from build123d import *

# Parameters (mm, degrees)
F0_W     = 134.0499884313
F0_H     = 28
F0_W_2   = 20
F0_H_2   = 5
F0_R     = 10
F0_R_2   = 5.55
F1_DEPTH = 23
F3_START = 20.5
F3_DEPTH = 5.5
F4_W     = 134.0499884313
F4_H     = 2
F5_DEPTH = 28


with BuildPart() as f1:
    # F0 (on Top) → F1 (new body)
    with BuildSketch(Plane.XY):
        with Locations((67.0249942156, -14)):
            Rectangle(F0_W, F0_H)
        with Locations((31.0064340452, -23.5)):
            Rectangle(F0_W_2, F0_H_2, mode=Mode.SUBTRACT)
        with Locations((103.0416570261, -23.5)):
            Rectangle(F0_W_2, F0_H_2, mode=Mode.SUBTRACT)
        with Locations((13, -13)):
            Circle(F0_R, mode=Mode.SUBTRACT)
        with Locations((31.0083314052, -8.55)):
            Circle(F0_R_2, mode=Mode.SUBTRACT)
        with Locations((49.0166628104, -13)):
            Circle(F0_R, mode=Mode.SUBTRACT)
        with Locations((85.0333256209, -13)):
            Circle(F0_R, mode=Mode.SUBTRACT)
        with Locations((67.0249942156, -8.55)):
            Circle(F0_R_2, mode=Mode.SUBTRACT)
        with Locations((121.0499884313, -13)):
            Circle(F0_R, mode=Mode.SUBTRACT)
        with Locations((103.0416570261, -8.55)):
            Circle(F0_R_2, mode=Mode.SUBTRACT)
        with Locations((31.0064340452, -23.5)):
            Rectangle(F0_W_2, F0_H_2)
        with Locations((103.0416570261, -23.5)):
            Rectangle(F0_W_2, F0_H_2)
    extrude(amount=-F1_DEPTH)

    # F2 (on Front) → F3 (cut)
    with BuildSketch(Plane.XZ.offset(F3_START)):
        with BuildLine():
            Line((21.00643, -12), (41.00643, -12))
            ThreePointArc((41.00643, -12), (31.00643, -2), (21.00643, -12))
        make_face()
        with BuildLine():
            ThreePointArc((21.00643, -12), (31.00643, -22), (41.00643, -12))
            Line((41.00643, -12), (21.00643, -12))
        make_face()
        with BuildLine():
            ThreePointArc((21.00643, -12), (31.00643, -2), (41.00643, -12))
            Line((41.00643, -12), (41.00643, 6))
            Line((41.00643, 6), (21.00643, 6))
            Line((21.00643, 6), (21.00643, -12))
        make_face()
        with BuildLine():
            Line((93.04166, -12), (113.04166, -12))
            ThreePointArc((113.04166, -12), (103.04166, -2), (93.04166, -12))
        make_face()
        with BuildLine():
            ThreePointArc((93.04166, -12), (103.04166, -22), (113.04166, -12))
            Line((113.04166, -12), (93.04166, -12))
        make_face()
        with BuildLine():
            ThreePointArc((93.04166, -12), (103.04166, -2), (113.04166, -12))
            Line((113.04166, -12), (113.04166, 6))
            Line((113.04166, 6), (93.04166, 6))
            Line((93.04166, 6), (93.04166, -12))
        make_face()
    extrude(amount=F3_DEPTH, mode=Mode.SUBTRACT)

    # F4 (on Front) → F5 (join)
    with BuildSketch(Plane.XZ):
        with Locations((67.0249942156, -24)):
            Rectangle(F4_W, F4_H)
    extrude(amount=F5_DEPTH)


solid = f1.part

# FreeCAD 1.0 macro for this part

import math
import FreeCAD as App
import Part
import Sketcher


def add_polygon(sketch, points):
    """Adds a closed chain of lines whose ends are joined by coincident constraints."""
    first, n = sketch.GeometryCount, len(points)
    for a, b in zip(points, points[1:] + points[:1]):
        sketch.addGeometry(Part.LineSegment(App.Vector(*a, 0), App.Vector(*b, 0)), False)
    for i in range(n):
        sketch.addConstraint(Sketcher.Constraint("Coincident", first + i, 2, first + (i + 1) % n, 1))

doc = App.newDocument("Part")
body = doc.addObject("PartDesign::Body", "Body")

# Sketch on XY plane
sketch1 = doc.addObject("Sketcher::SketchObject", "Sketch")
body.addObject(sketch1)
sketch1.AttachmentSupport = (doc.XY_Plane, [""])
sketch1.MapMode = "FlatFace"
add_polygon(sketch1, [(0, 0), (0, -28), (134.049988, -28), (134.049988, 0)])  # lines 0-3
sketch1.addGeometry(Part.Circle(App.Vector(13, -13, 0), App.Vector(0, 0, 1), 10), False)  # 4
sketch1.addGeometry(Part.Circle(App.Vector(49.016663, -13, 0), App.Vector(0, 0, 1), 10), False)  # 5
sketch1.addGeometry(Part.Circle(App.Vector(31.008331, -8.55, 0), App.Vector(0, 0, 1), 5.55), False)  # 6
sketch1.addGeometry(Part.Circle(App.Vector(67.024994, -8.55, 0), App.Vector(0, 0, 1), 5.55), False)  # 7
sketch1.addGeometry(Part.Circle(App.Vector(85.033326, -13, 0), App.Vector(0, 0, 1), 10), False)  # 8
sketch1.addGeometry(Part.Circle(App.Vector(121.049988, -13, 0), App.Vector(0, 0, 1), 10), False)  # 9
sketch1.addGeometry(Part.Circle(App.Vector(103.041657, -8.55, 0), App.Vector(0, 0, 1), 5.55), False)  # 10
sketch1.addConstraint(Sketcher.Constraint("Vertical", 0))
sketch1.addConstraint(Sketcher.Constraint("Horizontal", 1))
sketch1.addConstraint(Sketcher.Constraint("Vertical", 2))
sketch1.addConstraint(Sketcher.Constraint("Horizontal", 3))
sketch1.addConstraint(Sketcher.Constraint("Coincident", 3, 2, -1, 1))
sketch1.addConstraint(Sketcher.Constraint("Equal", 4, 5))
sketch1.addConstraint(Sketcher.Constraint("Equal", 6, 7))
sketch1.addConstraint(Sketcher.Constraint("Equal", 5, 8))
sketch1.addConstraint(Sketcher.Constraint("Equal", 8, 9))
sketch1.addConstraint(Sketcher.Constraint("Equal", 7, 10))
sketch1.addConstraint(Sketcher.Constraint("Horizontal", 4, 3, 5, 3))
sketch1.addConstraint(Sketcher.Constraint("Horizontal", 6, 3, 7, 3))
sketch1.addConstraint(Sketcher.Constraint("Horizontal", 5, 3, 8, 3))
sketch1.addConstraint(Sketcher.Constraint("Horizontal", 8, 3, 9, 3))
sketch1.addConstraint(Sketcher.Constraint("Horizontal", 7, 3, 10, 3))
sketch1.addConstraint(Sketcher.Constraint("Diameter", 4, 20.0))
sketch1.addConstraint(Sketcher.Constraint("Diameter", 6, 11.1))
sketch1.addConstraint(Sketcher.Constraint("DistanceY", 0, 2, 0, 1, 28.0))
sketch1.addConstraint(Sketcher.Constraint("DistanceX", -1, 1, 4, 3, 13.0))
sketch1.addConstraint(Sketcher.Constraint("DistanceY", 4, 3, -1, 1, 13.0))
sketch1.addConstraint(Sketcher.Constraint("DistanceX", 9, 3, 1, 2, 13.0))
sketch1.addConstraint(Sketcher.Constraint("DistanceY", 6, 3, -1, 1, 8.55))
sketch1.addConstraint(Sketcher.Constraint("DistanceX", 1, 1, 1, 2, 134.049988))
sketch1.addConstraint(Sketcher.Constraint("DistanceX", -1, 1, 6, 3, 31.008331))
sketch1.addConstraint(Sketcher.Constraint("DistanceX", 6, 3, 5, 3, 18.008331))
sketch1.addConstraint(Sketcher.Constraint("DistanceX", 5, 3, 7, 3, 18.008331))
sketch1.addConstraint(Sketcher.Constraint("DistanceX", 7, 3, 8, 3, 18.008331))
sketch1.addConstraint(Sketcher.Constraint("DistanceX", 8, 3, 10, 3, 18.008331))
pad1 = doc.addObject("PartDesign::Pad", "Pad")
body.addObject(pad1)
pad1.Profile = sketch1
pad1.Length = 23
pad1.Reversed = True

# Sketch on XZ plane
sketch2 = doc.addObject("Sketcher::SketchObject", "Sketch001")
body.addObject(sketch2)
sketch2.AttachmentSupport = (doc.XZ_Plane, [""])
sketch2.MapMode = "FlatFace"
sketch2.AttachmentOffset = App.Placement(App.Vector(0, 0, 20.5), App.Rotation())
sketch2.addGeometry(Part.ArcOfCircle(Part.Circle(App.Vector(31.00643, -12, 0), App.Vector(0, 0, 1), 10), math.radians(180), math.radians(360)), False)
sketch2.addGeometry(Part.LineSegment(App.Vector(41.00643, -12, 0), App.Vector(41.00643, 6, 0)), False)
sketch2.addGeometry(Part.LineSegment(App.Vector(41.00643, 6, 0), App.Vector(21.00643, 6, 0)), False)
sketch2.addGeometry(Part.LineSegment(App.Vector(21.00643, 6, 0), App.Vector(21.00643, -12, 0)), False)
sketch2.addGeometry(Part.ArcOfCircle(Part.Circle(App.Vector(103.04166, -12, 0), App.Vector(0, 0, 1), 10), math.radians(180), math.radians(360)), False)
sketch2.addGeometry(Part.LineSegment(App.Vector(113.04166, -12, 0), App.Vector(113.04166, 6, 0)), False)
sketch2.addGeometry(Part.LineSegment(App.Vector(113.04166, 6, 0), App.Vector(93.04166, 6, 0)), False)
sketch2.addGeometry(Part.LineSegment(App.Vector(93.04166, 6, 0), App.Vector(93.04166, -12, 0)), False)
sketch2.addConstraint(Sketcher.Constraint("Tangent", 0, 2, 1, 1))
sketch2.addConstraint(Sketcher.Constraint("Coincident", 1, 2, 2, 1))
sketch2.addConstraint(Sketcher.Constraint("Coincident", 2, 2, 3, 1))
sketch2.addConstraint(Sketcher.Constraint("Tangent", 3, 2, 0, 1))
sketch2.addConstraint(Sketcher.Constraint("Tangent", 4, 2, 5, 1))
sketch2.addConstraint(Sketcher.Constraint("Coincident", 5, 2, 6, 1))
sketch2.addConstraint(Sketcher.Constraint("Coincident", 6, 2, 7, 1))
sketch2.addConstraint(Sketcher.Constraint("Tangent", 7, 2, 4, 1))
sketch2.addConstraint(Sketcher.Constraint("Vertical", 1))
sketch2.addConstraint(Sketcher.Constraint("Horizontal", 2))
sketch2.addConstraint(Sketcher.Constraint("Vertical", 3))
sketch2.addConstraint(Sketcher.Constraint("Vertical", 5))
sketch2.addConstraint(Sketcher.Constraint("Horizontal", 6))
sketch2.addConstraint(Sketcher.Constraint("Vertical", 7))
sketch2.addConstraint(Sketcher.Constraint("Equal", 0, 4))
sketch2.addConstraint(Sketcher.Constraint("Horizontal", 0, 3, 4, 3))
sketch2.addConstraint(Sketcher.Constraint("Horizontal", 2, 2, 5, 2))
sketch2.addConstraint(Sketcher.Constraint("Radius", 0, 10.0))
sketch2.addConstraint(Sketcher.Constraint("DistanceY", 1, 1, 1, 2, 18.0))
sketch2.addConstraint(Sketcher.Constraint("DistanceY", 0, 3, -1, 1, 12.0))
sketch2.addConstraint(Sketcher.Constraint("DistanceX", -1, 1, 0, 3, 31.00643))
sketch2.addConstraint(Sketcher.Constraint("DistanceX", -1, 1, 4, 3, 103.04166))
pocket1 = doc.addObject("PartDesign::Pocket", "Pocket")
body.addObject(pocket1)
pocket1.Profile = sketch2
pocket1.Length = 5.5
pocket1.Reversed = True

# Sketch on XZ plane
sketch3 = doc.addObject("Sketcher::SketchObject", "Sketch002")
body.addObject(sketch3)
sketch3.AttachmentSupport = (doc.XZ_Plane, [""])
sketch3.MapMode = "FlatFace"
add_polygon(sketch3, [(0, -23), (0, -25), (134.049988, -25), (134.049988, -23)])  # lines 0-3
sketch3.addConstraint(Sketcher.Constraint("Vertical", 0))
sketch3.addConstraint(Sketcher.Constraint("Horizontal", 1))
sketch3.addConstraint(Sketcher.Constraint("Vertical", 2))
sketch3.addConstraint(Sketcher.Constraint("Horizontal", 3))
sketch3.addConstraint(Sketcher.Constraint("PointOnObject", 0, 2, -2))
sketch3.addConstraint(Sketcher.Constraint("DistanceY", 0, 2, 0, 1, 2.0))
sketch3.addConstraint(Sketcher.Constraint("DistanceY", 0, 2, -1, 1, 25.0))
sketch3.addConstraint(Sketcher.Constraint("DistanceX", 1, 1, 1, 2, 134.049988))
pad2 = doc.addObject("PartDesign::Pad", "Pad001")
body.addObject(pad2)
pad2.Profile = sketch3
pad2.Length = 28

doc.recompute()
